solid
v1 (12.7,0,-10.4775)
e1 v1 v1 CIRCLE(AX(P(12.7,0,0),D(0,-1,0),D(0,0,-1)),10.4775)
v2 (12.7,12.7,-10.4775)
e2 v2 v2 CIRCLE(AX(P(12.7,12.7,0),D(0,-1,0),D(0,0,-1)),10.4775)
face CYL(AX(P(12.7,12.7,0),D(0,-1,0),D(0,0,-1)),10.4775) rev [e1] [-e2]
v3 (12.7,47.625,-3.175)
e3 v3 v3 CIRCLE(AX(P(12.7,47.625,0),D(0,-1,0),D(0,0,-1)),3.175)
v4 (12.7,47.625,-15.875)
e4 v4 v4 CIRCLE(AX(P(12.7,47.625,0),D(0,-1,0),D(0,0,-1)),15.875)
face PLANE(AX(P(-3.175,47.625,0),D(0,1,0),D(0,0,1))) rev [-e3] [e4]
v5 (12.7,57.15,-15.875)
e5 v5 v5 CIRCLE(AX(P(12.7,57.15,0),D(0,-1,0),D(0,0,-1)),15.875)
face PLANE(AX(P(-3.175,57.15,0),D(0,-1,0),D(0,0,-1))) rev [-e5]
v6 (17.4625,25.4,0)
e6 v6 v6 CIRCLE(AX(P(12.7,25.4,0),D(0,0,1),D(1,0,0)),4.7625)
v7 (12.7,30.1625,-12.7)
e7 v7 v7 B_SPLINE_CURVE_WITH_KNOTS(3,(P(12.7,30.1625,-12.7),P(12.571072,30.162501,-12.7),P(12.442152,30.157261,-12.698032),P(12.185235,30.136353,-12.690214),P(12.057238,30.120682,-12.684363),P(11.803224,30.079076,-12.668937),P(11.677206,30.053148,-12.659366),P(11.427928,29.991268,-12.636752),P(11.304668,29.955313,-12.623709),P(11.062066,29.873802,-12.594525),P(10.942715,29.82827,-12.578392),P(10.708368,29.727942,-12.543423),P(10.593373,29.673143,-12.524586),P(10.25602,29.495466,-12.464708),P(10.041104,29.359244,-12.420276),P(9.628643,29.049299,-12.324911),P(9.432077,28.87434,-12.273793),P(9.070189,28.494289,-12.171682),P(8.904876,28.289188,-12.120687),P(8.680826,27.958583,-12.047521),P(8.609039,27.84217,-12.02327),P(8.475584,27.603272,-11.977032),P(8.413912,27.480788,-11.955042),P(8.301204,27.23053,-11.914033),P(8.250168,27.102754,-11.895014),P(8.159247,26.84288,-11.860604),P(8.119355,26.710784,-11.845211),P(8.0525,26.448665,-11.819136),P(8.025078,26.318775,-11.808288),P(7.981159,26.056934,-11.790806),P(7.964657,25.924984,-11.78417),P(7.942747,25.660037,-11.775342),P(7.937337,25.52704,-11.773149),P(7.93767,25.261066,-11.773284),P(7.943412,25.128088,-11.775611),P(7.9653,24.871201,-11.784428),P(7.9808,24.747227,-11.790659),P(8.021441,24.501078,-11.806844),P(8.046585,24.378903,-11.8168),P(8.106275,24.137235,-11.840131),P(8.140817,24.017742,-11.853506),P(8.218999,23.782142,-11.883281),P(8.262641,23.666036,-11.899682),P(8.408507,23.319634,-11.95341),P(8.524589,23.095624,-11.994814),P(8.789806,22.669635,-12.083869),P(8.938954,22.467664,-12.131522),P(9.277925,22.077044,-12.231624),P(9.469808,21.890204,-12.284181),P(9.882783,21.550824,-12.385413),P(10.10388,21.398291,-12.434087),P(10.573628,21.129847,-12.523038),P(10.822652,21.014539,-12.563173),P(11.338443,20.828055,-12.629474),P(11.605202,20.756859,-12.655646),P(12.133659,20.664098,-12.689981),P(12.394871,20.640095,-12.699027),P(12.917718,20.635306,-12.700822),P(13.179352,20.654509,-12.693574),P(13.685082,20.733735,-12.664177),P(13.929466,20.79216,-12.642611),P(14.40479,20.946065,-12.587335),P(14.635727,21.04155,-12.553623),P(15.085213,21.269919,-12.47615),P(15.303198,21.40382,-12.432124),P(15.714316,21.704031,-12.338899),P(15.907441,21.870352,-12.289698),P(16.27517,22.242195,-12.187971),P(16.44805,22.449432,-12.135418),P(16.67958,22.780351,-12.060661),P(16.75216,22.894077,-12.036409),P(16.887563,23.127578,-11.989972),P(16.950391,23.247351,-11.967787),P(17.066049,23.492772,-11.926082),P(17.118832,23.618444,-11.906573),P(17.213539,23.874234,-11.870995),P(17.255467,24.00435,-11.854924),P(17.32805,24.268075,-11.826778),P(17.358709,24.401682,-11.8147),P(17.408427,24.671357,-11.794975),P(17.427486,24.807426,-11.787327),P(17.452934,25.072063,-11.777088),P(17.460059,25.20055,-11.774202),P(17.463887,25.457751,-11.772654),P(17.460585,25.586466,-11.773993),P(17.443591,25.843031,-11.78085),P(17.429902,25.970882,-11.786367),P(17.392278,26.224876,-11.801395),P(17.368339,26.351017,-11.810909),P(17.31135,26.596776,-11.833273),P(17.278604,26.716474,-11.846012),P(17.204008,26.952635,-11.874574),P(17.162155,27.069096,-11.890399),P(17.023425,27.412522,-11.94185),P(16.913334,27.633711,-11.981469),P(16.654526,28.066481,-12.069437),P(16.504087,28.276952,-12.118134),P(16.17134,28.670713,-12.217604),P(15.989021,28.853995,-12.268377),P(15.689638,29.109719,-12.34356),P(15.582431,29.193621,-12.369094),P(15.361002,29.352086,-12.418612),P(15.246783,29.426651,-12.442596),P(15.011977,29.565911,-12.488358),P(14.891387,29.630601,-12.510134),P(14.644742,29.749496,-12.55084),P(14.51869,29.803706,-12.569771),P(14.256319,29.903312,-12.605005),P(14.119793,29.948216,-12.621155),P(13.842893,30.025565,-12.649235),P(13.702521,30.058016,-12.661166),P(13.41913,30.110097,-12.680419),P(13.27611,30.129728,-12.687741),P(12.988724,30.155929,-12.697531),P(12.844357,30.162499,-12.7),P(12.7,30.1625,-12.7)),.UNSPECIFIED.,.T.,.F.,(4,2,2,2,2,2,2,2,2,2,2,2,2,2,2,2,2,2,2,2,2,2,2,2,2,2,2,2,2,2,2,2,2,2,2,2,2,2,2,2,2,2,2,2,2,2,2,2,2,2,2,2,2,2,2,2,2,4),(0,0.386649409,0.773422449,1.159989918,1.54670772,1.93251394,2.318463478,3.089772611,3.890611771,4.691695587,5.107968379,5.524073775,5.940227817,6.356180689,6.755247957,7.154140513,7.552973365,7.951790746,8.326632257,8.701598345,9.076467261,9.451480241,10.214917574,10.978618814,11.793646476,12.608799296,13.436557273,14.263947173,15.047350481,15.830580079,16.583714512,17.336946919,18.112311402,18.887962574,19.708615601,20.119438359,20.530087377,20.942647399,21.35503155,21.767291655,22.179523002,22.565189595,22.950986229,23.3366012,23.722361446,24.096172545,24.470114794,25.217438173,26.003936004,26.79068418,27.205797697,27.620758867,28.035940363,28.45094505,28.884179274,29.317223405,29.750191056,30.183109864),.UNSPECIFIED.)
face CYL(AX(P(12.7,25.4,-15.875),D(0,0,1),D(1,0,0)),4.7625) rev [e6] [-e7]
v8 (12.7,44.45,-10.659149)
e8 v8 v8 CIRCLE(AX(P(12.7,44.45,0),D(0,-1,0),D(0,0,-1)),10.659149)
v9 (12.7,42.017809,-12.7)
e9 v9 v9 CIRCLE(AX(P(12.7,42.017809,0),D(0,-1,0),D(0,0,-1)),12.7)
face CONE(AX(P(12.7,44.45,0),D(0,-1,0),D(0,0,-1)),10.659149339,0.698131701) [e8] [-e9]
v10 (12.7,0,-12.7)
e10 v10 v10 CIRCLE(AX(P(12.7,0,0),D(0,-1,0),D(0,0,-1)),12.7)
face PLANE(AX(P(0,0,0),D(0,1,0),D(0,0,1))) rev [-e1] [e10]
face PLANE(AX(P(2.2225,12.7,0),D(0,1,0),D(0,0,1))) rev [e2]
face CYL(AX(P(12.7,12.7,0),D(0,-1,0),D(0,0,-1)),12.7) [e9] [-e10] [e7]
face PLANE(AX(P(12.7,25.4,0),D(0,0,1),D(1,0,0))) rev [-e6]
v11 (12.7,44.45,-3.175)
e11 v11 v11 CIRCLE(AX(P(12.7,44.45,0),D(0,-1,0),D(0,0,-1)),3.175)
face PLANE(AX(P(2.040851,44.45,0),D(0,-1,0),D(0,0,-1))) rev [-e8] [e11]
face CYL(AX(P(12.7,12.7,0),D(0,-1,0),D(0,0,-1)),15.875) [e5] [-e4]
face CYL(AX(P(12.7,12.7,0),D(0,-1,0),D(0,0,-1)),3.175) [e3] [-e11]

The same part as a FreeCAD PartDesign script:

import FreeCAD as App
import Part
import Sketcher

V = App.Vector
Q = App.Units.Quantity


def add_polygon(sketch, points):
    """Adds a closed chain of lines whose ends are joined by coincident constraints."""
    first, n = sketch.GeometryCount, len(points)
    for a, b in zip(points, points[1:] + points[:1]):
        sketch.addGeometry(Part.LineSegment(App.Vector(*a, 0), App.Vector(*b, 0)), False)
    for i in range(n):
        sketch.addConstraint(Sketcher.Constraint("Coincident", first + i, 2, first + (i + 1) % n, 1))

doc = App.newDocument("Part")
body = doc.addObject("PartDesign::Body", "Body")

# Sketch on XY plane
sketch1 = doc.addObject("Sketcher::SketchObject", "Sketch")
body.addObject(sketch1)
sketch1.AttachmentSupport = (doc.XY_Plane, [""])
sketch1.MapMode = "FlatFace"
add_polygon(sketch1, [(2, 44.5), (0, 42), (0, 0), (2.2, 0), (2.2, 12.7), (12.7, 12.7), (12.7, 57.1), (-3.2, 57.1), (-3.2, 47.6), (9.5, 47.6), (9.5, 44.5)])  # lines 0-10
sketch1.addGeometry(Part.LineSegment(V(12.7, 0, 0), V(12.7, 57.1, 0)), True)  # axis
sketch1.addConstraint([
    Sketcher.Constraint("Vertical", 1),
    Sketcher.Constraint("Horizontal", 2),
    Sketcher.Constraint("Vertical", 3),
    Sketcher.Constraint("Horizontal", 4),
    Sketcher.Constraint("Vertical", 5),
    Sketcher.Constraint("Horizontal", 6),
    Sketcher.Constraint("Vertical", 7),
    Sketcher.Constraint("Horizontal", 8),
    Sketcher.Constraint("Vertical", 9),
    Sketcher.Constraint("Horizontal", 10),
    Sketcher.Constraint("Vertical", 11),
    Sketcher.Constraint("Coincident", 1, 2, -1, 1),
    Sketcher.Constraint("Coincident", 11, 2, 5, 2),
    Sketcher.Constraint("PointOnObject", 11, 1, -1),
    Sketcher.Constraint("Equal", 8, 3),
    Sketcher.Constraint("DistanceX", 8, 1, 8, 2, Q("0.5 in")),
    Sketcher.Constraint("Angle", 0, Q("-130 deg")),
    Sketcher.Constraint("DistanceY", 5, 1, 5, 2, Q("1.75 in")),
    Sketcher.Constraint("DistanceX", -1, 1, 4, 2, Q("0.5 in")),
    Sketcher.Constraint("DistanceY", 9, 2, 5, 2, Q("0.5 in")),
    Sketcher.Constraint("DistanceX", 6, 2, 6, 1, Q("0.625 in")),
    Sketcher.Constraint("DistanceY", 7, 2, 7, 1, Q("0.375 in")),
    Sketcher.Constraint("Distance", 0, Q("0.125 in")),
    Sketcher.Constraint("DistanceX", 2, 1, 2, 2, Q("0.0875 in")),
])
revolution = doc.addObject("PartDesign::Revolution", "Revolution")
body.addObject(revolution)
revolution.Profile = sketch1
revolution.ReferenceAxis = (sketch1, ["Axis0"])
revolution.Angle = 360

# Sketch on XY plane
sketch2 = doc.addObject("Sketcher::SketchObject", "Sketch001")
body.addObject(sketch2)
sketch2.AttachmentSupport = (doc.XY_Plane, [""])
sketch2.MapMode = "FlatFace"
sketch2.addGeometry(Part.Circle(V(12.7, 25.4, 0), V(0, 0, 1), 4.8), False)
sketch2.addConstraint([
    Sketcher.Constraint("Diameter", 0, Q("0.375 in")),
    Sketcher.Constraint("DistanceY", -1, 1, 0, 3, Q("1 in")),
    Sketcher.Constraint("DistanceX", -1, 1, 0, 3, Q("0.5 in")),
])
pocket1 = doc.addObject("PartDesign::Pocket", "Pocket")
body.addObject(pocket1)
pocket1.Profile = sketch2
pocket1.Type = "ThroughAll"

doc.recompute()
